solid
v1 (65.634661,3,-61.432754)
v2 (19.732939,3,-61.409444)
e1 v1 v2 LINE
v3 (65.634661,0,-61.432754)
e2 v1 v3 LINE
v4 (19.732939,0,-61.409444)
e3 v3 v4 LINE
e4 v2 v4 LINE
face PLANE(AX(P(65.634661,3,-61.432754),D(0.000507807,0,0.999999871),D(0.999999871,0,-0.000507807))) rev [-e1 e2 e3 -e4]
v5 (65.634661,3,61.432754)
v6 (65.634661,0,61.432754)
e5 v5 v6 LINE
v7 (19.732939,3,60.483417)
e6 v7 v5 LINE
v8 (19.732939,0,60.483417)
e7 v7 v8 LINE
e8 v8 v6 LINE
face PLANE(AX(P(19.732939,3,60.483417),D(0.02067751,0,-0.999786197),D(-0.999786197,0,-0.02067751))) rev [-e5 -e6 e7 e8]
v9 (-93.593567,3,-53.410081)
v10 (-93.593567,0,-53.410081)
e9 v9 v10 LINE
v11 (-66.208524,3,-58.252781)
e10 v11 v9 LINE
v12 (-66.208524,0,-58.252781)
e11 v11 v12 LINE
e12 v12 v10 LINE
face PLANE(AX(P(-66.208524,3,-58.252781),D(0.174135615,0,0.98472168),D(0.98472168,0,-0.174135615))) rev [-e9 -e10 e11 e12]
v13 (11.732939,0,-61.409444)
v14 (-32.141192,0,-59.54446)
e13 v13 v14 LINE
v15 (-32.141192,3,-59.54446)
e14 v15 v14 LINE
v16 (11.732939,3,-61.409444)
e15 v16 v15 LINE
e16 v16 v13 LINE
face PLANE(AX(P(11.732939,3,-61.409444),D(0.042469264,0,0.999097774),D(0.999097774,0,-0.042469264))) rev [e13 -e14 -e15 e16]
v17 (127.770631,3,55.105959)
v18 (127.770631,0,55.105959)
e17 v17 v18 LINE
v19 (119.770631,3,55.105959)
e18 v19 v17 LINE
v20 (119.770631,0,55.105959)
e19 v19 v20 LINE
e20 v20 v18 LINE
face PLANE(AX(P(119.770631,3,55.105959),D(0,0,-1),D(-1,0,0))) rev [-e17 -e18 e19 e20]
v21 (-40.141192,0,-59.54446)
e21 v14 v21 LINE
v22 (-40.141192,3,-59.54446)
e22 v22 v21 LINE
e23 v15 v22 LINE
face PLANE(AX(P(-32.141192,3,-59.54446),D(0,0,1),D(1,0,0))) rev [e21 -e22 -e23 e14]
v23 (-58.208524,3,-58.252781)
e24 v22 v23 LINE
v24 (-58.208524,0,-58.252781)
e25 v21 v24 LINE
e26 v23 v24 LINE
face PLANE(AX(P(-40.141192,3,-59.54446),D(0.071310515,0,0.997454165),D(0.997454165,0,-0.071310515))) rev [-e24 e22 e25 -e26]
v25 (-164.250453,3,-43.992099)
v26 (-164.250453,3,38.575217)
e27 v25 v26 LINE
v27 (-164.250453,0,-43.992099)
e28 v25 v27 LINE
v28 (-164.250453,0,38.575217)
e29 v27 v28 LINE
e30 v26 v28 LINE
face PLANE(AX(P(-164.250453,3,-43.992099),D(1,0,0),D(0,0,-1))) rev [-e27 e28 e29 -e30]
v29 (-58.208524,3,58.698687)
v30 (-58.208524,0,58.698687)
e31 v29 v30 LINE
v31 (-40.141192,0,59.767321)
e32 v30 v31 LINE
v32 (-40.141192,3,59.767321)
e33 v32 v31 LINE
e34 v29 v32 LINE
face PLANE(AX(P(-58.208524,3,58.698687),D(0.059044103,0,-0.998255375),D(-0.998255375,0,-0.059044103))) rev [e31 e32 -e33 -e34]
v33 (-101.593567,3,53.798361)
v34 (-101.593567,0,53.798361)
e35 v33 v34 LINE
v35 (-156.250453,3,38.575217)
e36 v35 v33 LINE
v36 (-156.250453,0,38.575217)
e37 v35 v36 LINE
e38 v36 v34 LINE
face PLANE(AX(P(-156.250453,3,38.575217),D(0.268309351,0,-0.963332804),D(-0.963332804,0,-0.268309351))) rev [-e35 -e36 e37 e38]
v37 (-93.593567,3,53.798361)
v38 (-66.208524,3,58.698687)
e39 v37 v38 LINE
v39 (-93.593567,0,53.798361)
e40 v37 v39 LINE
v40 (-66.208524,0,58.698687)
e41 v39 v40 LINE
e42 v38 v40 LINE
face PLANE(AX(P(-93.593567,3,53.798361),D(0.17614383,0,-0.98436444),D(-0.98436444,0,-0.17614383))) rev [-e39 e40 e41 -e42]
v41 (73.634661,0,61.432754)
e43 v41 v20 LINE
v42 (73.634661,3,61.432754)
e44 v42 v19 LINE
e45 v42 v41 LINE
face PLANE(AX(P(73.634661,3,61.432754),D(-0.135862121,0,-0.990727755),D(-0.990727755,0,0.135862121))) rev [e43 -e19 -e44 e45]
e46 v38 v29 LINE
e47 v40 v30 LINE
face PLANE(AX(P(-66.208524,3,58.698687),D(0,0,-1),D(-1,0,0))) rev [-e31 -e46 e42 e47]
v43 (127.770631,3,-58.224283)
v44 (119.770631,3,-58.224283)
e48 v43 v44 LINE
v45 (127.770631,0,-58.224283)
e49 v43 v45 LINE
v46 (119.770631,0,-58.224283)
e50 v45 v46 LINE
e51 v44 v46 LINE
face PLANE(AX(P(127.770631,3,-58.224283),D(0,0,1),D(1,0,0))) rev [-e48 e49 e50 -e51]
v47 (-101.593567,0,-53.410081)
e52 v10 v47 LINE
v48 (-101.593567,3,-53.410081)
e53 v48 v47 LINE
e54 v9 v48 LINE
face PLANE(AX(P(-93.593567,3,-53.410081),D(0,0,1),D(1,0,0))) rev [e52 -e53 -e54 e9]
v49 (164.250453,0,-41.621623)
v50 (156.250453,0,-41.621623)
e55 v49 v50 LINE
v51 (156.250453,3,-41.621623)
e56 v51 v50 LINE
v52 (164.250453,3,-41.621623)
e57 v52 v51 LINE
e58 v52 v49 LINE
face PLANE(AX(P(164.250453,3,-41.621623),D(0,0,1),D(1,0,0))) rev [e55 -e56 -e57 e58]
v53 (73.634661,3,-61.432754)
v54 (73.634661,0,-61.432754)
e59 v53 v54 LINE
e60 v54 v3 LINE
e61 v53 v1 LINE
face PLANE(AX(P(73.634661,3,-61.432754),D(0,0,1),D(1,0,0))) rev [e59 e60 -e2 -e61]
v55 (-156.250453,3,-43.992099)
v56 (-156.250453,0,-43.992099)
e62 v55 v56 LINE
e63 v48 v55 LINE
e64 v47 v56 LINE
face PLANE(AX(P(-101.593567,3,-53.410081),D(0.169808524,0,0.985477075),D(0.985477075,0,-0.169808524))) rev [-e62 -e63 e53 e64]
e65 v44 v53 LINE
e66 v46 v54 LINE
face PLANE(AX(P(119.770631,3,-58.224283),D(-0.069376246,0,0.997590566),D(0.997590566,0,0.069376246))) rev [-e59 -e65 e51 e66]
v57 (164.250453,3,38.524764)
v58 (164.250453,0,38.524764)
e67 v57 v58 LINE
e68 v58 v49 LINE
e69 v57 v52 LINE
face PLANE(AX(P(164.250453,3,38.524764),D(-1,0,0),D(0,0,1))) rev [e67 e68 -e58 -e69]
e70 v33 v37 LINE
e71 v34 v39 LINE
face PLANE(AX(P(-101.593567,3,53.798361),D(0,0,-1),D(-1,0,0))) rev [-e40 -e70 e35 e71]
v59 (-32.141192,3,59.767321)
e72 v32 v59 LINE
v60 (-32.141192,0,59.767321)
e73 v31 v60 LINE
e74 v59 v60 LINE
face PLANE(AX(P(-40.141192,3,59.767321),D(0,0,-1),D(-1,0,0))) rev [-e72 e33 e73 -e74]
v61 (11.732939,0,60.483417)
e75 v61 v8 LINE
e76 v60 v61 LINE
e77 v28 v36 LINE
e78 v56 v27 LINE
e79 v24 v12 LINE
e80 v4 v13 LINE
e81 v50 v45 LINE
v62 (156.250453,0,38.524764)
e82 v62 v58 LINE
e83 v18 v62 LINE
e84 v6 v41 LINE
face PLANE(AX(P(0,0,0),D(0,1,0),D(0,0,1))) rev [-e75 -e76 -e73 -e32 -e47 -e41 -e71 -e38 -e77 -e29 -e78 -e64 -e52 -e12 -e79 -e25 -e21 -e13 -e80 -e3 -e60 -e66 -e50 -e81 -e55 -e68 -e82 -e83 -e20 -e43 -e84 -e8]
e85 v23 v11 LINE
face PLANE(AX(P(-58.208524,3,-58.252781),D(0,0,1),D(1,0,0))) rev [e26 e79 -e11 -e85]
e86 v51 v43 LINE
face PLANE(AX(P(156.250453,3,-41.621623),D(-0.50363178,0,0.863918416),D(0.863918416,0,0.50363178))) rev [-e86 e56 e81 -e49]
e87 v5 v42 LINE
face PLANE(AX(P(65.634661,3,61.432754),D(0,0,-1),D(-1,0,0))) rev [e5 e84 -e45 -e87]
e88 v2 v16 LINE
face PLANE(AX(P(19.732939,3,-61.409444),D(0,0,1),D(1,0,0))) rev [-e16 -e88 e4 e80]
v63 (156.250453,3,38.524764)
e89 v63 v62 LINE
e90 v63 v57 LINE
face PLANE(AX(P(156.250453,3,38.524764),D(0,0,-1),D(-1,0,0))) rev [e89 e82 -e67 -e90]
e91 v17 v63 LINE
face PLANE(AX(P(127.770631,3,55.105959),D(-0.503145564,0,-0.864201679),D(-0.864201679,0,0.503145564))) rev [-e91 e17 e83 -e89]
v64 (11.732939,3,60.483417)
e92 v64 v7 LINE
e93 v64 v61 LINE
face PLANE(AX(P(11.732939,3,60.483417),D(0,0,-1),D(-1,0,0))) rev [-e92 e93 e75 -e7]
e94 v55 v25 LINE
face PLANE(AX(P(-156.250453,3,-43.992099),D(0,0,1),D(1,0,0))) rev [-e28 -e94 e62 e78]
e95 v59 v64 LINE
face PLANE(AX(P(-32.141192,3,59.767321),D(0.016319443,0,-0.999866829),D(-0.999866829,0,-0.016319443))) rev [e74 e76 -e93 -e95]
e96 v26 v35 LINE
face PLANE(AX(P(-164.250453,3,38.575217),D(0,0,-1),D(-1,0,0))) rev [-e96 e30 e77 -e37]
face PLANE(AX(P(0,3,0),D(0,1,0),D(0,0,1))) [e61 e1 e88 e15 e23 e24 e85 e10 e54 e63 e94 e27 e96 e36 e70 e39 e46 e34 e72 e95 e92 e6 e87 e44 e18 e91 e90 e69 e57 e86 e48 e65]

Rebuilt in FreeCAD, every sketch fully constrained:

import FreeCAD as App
import Part
import Sketcher
Q = App.Units.Quantity


def add_polygon(sketch, points):
    """Adds a closed chain of lines whose ends are joined by coincident constraints."""
    first, n = sketch.GeometryCount, len(points)
    for a, b in zip(points, points[1:] + points[:1]):
        sketch.addGeometry(Part.LineSegment(App.Vector(*a, 0), App.Vector(*b, 0)), False)
    for i in range(n):
        sketch.addConstraint(Sketcher.Constraint("Coincident", first + i, 2, first + (i + 1) % n, 1))

doc = App.newDocument("Part")
body = doc.addObject("PartDesign::Body", "Body")

# Sketch on XZ plane
sketch1 = doc.addObject("Sketcher::SketchObject", "Sketch")
body.addObject(sketch1)
sketch1.AttachmentSupport = (doc.XZ_Plane, [""])
sketch1.MapMode = "FlatFace"
add_polygon(sketch1, [(-164, -44), (-164, 39), (-156, 39), (-102, 54), (-94, 54), (-66, 59), (-58, 59), (-40, 60), (-32, 60), (12, 60), (20, 60), (66, 61), (74, 61), (120, 55), (128, 55), (156, 39), (164, 39), (164, -42), (156, -42), (128, -58), (120, -58), (74, -61), (66, -61), (20, -61), (12, -61), (-32, -60), (-40, -60), (-58, -58), (-66, -58), (-94, -53), (-102, -53), (-156, -44)])  # lines 0-31
sketch1.addConstraint([
    Sketcher.Constraint("Vertical", 0),
    Sketcher.Constraint("Horizontal", 1),
    Sketcher.Constraint("Horizontal", 3),
    Sketcher.Constraint("Horizontal", 5),
    Sketcher.Constraint("Horizontal", 7),
    Sketcher.Constraint("Horizontal", 9),
    Sketcher.Constraint("Horizontal", 11),
    Sketcher.Constraint("Horizontal", 13),
    Sketcher.Constraint("Horizontal", 15),
    Sketcher.Constraint("Vertical", 16),
    Sketcher.Constraint("Horizontal", 17),
    Sketcher.Constraint("Horizontal", 19),
    Sketcher.Constraint("Horizontal", 21),
    Sketcher.Constraint("Horizontal", 23),
    Sketcher.Constraint("Horizontal", 25),
    Sketcher.Constraint("Horizontal", 27),
    Sketcher.Constraint("Horizontal", 29),
    Sketcher.Constraint("Horizontal", 31),
    Sketcher.Constraint("Symmetric", 11, 2, 20, 2, -1),
    Sketcher.Constraint("Vertical", 14, 2, 17, 2),
    Sketcher.Constraint("Vertical", 13, 2, 18, 2),
    Sketcher.Constraint("Vertical", 12, 2, 19, 2),
    Sketcher.Constraint("Vertical", 10, 2, 21, 2),
    Sketcher.Constraint("Vertical", 9, 2, 22, 2),
    Sketcher.Constraint("Vertical", 8, 2, 23, 2),
    Sketcher.Constraint("Vertical", 7, 2, 24, 2),
    Sketcher.Constraint("Vertical", 6, 2, 25, 2),
    Sketcher.Constraint("Vertical", 5, 2, 26, 2),
    Sketcher.Constraint("Vertical", 4, 2, 27, 2),
    Sketcher.Constraint("Vertical", 3, 2, 28, 2),
    Sketcher.Constraint("Vertical", 2, 2, 29, 2),
    Sketcher.Constraint("Vertical", 1, 2, 30, 2),
    Sketcher.Constraint("Equal", 1, 3),
    Sketcher.Constraint("Equal", 3, 5),
    Sketcher.Constraint("Equal", 5, 7),
    Sketcher.Constraint("Equal", 7, 9),
    Sketcher.Constraint("Equal", 9, 11),
    Sketcher.Constraint("Equal", 11, 13),
    Sketcher.Constraint("Equal", 13, 15),
    Sketcher.Constraint("DistanceX", 1, 1, 1, 2, Q("8 mm")),
    Sketcher.Constraint("Distance", 20, Q("46.247399 mm")),
    Sketcher.Constraint("DistanceY", 30, 2, -1, 1, Q("43.992099 mm")),
    Sketcher.Constraint("DistanceY", 27, 2, 28, 2, Q("4.8427 mm")),
    Sketcher.Constraint("Distance", 6, Q("18.098908 mm")),
    Sketcher.Constraint("Distance", 10, Q("45.911539 mm")),
    Sketcher.Constraint("Distance", 18, Q("32.965871 mm")),
    Sketcher.Constraint("Distance", 22, Q("45.901729 mm")),
    Sketcher.Constraint("Distance", 24, Q("43.913751 mm")),
    Sketcher.Constraint("Distance", 28, Q("27.809932 mm")),
    Sketcher.Constraint("DistanceY", 0, 1, 0, 2, Q("82.567317 mm")),
    Sketcher.Constraint("DistanceY", 16, 2, 16, 1, Q("80.146387 mm")),
    Sketcher.Constraint("DistanceY", -1, 1, 2, 2, Q("53.798361 mm")),
    Sketcher.Constraint("DistanceX", 6, 2, -1, 1, Q("40.141192 mm")),
    Sketcher.Constraint("DistanceY", -1, 1, 6, 2, Q("59.767321 mm")),
    Sketcher.Constraint("DistanceX", -1, 1, 8, 2, Q("11.732939 mm")),
    Sketcher.Constraint("DistanceX", -1, 1, 12, 2, Q("119.770631 mm")),
    Sketcher.Constraint("DistanceY", -1, 1, 12, 2, Q("55.105959 mm")),
    Sketcher.Constraint("DistanceY", 24, 2, -1, 1, Q("59.54446 mm")),
    Sketcher.Constraint("DistanceY", 26, 2, -1, 1, Q("58.252781 mm")),
    Sketcher.Constraint("DistanceX", 1, 2, 4, 2, Q("90.041929 mm")),
    Sketcher.Constraint("DistanceY", 1, 2, 4, 2, Q("20.123469 mm")),
    Sketcher.Constraint("DistanceY", 5, 2, 8, 2, Q("1.784731 mm")),
    Sketcher.Constraint("DistanceX", 11, 2, 14, 2, Q("82.615792 mm")),
])
pad1 = doc.addObject("PartDesign::Pad", "Pad")
body.addObject(pad1)
pad1.Profile = sketch1
pad1.Length = 3
pad1.Reversed = True

doc.recompute()
